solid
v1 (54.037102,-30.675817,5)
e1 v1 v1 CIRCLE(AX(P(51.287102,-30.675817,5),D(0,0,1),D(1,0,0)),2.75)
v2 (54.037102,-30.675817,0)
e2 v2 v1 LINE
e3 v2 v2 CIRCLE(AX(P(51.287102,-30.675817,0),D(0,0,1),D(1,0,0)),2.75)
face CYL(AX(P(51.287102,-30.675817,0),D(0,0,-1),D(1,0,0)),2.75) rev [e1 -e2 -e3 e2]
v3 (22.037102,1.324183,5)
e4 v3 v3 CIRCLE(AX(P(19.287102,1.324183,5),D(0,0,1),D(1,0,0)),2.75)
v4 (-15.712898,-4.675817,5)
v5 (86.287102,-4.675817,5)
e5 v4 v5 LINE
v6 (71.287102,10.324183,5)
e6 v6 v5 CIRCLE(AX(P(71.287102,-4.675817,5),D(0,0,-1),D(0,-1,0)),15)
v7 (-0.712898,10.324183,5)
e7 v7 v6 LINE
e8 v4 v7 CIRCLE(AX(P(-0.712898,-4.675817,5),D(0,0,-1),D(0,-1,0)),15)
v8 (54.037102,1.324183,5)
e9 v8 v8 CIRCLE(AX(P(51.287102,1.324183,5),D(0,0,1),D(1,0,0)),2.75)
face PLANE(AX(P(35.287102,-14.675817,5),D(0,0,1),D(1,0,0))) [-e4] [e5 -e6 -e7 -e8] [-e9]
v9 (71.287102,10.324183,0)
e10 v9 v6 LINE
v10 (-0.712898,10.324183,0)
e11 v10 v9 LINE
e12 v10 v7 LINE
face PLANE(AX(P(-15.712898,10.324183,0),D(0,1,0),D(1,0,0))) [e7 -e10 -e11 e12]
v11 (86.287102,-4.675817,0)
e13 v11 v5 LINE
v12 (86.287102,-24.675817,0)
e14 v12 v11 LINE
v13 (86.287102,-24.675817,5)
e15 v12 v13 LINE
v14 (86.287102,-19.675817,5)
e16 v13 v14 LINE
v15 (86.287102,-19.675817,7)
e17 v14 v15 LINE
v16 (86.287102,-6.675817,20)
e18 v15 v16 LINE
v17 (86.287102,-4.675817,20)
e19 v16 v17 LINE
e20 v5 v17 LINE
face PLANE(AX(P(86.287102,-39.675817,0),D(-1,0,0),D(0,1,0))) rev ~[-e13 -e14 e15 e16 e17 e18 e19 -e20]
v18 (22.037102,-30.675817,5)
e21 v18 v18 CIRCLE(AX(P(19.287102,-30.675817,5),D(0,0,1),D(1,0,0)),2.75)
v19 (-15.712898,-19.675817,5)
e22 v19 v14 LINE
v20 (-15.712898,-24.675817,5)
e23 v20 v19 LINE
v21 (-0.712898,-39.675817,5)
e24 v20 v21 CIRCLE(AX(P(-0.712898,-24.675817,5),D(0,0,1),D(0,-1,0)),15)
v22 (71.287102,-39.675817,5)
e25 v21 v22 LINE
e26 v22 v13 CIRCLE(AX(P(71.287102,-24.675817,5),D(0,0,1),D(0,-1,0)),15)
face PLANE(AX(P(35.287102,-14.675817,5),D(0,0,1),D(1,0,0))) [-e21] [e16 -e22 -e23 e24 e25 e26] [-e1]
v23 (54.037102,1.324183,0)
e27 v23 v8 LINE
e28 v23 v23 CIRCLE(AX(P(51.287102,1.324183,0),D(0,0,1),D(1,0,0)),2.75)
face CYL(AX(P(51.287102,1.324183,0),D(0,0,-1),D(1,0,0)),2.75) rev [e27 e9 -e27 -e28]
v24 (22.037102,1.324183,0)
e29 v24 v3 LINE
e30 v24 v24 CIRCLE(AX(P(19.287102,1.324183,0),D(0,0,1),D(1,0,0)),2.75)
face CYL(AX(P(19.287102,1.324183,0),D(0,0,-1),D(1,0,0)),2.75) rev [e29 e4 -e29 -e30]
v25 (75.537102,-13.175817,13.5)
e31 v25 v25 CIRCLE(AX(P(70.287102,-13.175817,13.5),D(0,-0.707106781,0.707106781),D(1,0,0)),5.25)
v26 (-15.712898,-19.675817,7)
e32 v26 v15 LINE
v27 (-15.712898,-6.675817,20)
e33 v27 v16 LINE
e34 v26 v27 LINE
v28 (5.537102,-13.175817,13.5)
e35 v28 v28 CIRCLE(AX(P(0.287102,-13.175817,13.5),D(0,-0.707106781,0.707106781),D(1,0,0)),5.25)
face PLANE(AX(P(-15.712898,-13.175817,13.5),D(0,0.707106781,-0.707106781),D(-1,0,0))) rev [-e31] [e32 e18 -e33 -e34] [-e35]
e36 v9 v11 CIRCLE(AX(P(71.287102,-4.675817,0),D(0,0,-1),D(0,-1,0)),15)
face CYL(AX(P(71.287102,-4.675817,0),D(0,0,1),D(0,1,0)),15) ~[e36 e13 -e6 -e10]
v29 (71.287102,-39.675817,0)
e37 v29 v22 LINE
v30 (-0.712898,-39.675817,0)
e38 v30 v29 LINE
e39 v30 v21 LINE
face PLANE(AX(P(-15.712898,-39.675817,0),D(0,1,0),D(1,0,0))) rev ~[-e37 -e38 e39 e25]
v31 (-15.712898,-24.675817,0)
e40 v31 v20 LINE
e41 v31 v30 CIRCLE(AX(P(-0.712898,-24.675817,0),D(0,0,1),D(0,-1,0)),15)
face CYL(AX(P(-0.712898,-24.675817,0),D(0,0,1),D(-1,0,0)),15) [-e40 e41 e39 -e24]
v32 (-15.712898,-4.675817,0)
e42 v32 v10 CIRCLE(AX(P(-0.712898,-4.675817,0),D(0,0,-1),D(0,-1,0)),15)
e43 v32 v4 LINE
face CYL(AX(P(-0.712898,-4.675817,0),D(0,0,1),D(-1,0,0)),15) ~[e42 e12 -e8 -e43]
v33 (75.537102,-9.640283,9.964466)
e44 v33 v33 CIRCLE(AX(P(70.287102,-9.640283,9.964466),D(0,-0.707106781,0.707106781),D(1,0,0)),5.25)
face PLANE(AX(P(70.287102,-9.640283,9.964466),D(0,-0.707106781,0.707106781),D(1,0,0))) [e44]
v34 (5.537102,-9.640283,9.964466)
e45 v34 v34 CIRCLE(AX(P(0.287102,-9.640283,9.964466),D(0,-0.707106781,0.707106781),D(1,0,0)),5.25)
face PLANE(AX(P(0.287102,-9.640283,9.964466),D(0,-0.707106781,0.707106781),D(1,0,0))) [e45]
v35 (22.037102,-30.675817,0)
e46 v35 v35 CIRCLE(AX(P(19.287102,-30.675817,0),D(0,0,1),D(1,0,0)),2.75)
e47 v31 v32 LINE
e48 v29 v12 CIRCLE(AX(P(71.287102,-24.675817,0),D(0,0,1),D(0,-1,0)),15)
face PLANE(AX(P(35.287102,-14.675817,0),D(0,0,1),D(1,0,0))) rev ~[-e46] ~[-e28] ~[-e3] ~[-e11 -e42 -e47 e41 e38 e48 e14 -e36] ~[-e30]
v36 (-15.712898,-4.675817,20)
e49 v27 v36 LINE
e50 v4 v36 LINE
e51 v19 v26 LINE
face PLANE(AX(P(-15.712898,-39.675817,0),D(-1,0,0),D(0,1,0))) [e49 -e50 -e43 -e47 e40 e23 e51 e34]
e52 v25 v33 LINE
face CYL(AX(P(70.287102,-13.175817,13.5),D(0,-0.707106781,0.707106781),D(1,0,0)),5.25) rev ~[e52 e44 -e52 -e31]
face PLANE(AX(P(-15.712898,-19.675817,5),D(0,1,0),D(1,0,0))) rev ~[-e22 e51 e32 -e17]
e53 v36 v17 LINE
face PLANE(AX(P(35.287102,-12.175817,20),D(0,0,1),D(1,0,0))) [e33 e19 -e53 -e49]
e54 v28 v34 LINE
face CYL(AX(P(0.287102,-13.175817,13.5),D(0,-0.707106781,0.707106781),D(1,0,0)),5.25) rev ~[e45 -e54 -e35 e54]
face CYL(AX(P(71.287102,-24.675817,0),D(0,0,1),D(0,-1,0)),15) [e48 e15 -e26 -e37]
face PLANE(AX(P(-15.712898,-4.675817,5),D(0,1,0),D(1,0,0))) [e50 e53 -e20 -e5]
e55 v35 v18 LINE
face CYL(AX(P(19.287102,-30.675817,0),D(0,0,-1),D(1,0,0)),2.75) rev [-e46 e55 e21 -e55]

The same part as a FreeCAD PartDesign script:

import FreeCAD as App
import Part
import Sketcher

V = App.Vector
Q = App.Units.Quantity


def edges_at(feature, points):
    """Names of the edges that pass closest to the given points."""
    edges = feature.Shape.Edges
    near = lambda p: min(range(len(edges)), key=lambda i: edges[i].distToShape(Part.Vertex(*p))[0])
    return sorted({f"Edge{near(p) + 1}" for p in points})

doc = App.newDocument("Part")
body = doc.addObject("PartDesign::Body", "Body")

# Sketch on XY plane
sketch1 = body.newObject("Sketcher::SketchObject", "Sketch")
sketch1.AttachmentSupport = (doc.getObject("XY_Plane"), [""])
sketch1.MapMode = "FlatFace"
sketch1.addGeometry([
    Part.LineSegment(V(-15.7, 10.3, 0), V(-15.7, -39.7, 0)),  # 0
    Part.LineSegment(V(-15.7, -39.7, 0), V(86.3, -39.7, 0)),  # 1
    Part.LineSegment(V(86.3, -39.7, 0), V(86.3, 10.3, 0)),  # 2
    Part.LineSegment(V(86.3, 10.3, 0), V(-15.7, 10.3, 0)),  # 3
    Part.Circle(V(19.3, -30.7, 0), V(0, 0, 1), 2.8),  # 4
    Part.Circle(V(51.3, -30.7, 0), V(0, 0, 1), 2.8),  # 5
    Part.Circle(V(19.3, 1.3, 0), V(0, 0, 1), 2.8),  # 6
    Part.Circle(V(51.3, 1.3, 0), V(0, 0, 1), 2.8),  # 7
], False)
sketch1.addConstraint([
    Sketcher.Constraint("Coincident", 0, 2, 1, 1),
    Sketcher.Constraint("Coincident", 1, 2, 2, 1),
    Sketcher.Constraint("Coincident", 2, 2, 3, 1),
    Sketcher.Constraint("Coincident", 3, 2, 0, 1),
    Sketcher.Constraint("Vertical", 0),
    Sketcher.Constraint("Horizontal", 1),
    Sketcher.Constraint("Vertical", 2),
    Sketcher.Constraint("Horizontal", 3),
    Sketcher.Constraint("Equal", 4, 5),
    Sketcher.Constraint("Equal", 5, 6),
    Sketcher.Constraint("Equal", 6, 7),
    Sketcher.Constraint("Horizontal", 4, 3, 5, 3),
    Sketcher.Constraint("Horizontal", 6, 3, 7, 3),
    Sketcher.Constraint("Vertical", 4, 3, 6, 3),
    Sketcher.Constraint("Vertical", 5, 3, 7, 3),
    Sketcher.Constraint("Diameter", 4, Q("5.5 mm")),
    Sketcher.Constraint("DistanceX", 1, 1, 1, 2, Q("102 mm")),
    Sketcher.Constraint("DistanceY", 0, 2, 0, 1, Q("50 mm")),
    Sketcher.Constraint("DistanceX", 4, 3, 5, 3, Q("32 mm")),
    Sketcher.Constraint("DistanceY", 4, 3, 6, 3, Q("32 mm")),
    Sketcher.Constraint("DistanceX", 0, 2, 4, 3, Q("35 mm")),
    Sketcher.Constraint("DistanceY", 0, 2, 4, 3, Q("9 mm")),
    Sketcher.Constraint("DistanceX", -1, 1, 4, 3, Q("19.287102 mm")),
    Sketcher.Constraint("DistanceY", 4, 3, -1, 1, Q("30.675817 mm")),
])
pad1 = body.newObject("PartDesign::Pad", "Pad")
pad1.Profile = sketch1
pad1.Length = 5

# Sketch on XY plane
sketch2 = body.newObject("Sketcher::SketchObject", "Sketch001")
sketch2.AttachmentSupport = (doc.getObject("XY_Plane"), [""])
sketch2.MapMode = "FlatFace"
sketch2.AttachmentOffset = App.Placement(V(0, 0, 5), App.Rotation())
sketch2.addGeometry([
    Part.LineSegment(V(-16, -5, 0), V(-16, -20, 0)),
    Part.LineSegment(V(-16, -20, 0), V(86, -20, 0)),
    Part.LineSegment(V(86, -20, 0), V(86, -5, 0)),
    Part.LineSegment(V(86, -5, 0), V(-16, -5, 0)),
], False)
sketch2.addConstraint([
    Sketcher.Constraint("Coincident", 0, 2, 1, 1),
    Sketcher.Constraint("Coincident", 1, 2, 2, 1),
    Sketcher.Constraint("Coincident", 2, 2, 3, 1),
    Sketcher.Constraint("Coincident", 3, 2, 0, 1),
    Sketcher.Constraint("Vertical", 0),
    Sketcher.Constraint("Horizontal", 1),
    Sketcher.Constraint("Vertical", 2),
    Sketcher.Constraint("Horizontal", 3),
    Sketcher.Constraint("DistanceX", 1, 1, 1, 2, Q("102 mm")),
    Sketcher.Constraint("DistanceY", 0, 2, 0, 1, Q("15 mm")),
    Sketcher.Constraint("DistanceX", 0, 2, -1, 1, Q("15.712898 mm")),
    Sketcher.Constraint("DistanceY", 0, 2, -1, 1, Q("19.675817 mm")),
])
pad2 = body.newObject("PartDesign::Pad", "Pad001")
pad2.Profile = sketch2
pad2.Length = 15
doc.recompute()

chamfer = body.newObject("PartDesign::Chamfer", "Chamfer")
chamfer.Base = (pad2, edges_at(pad2, [(35.287, -19.676, 20)]))
chamfer.Size = 13
doc.recompute()

fillet = body.newObject("PartDesign::Fillet", "Fillet")
fillet.Base = (chamfer, edges_at(chamfer, [
    (86.287, 10.324, 2.5),
    (-15.713, 10.324, 2.5),
    (86.287, -39.676, 2.5),
    (-15.713, -39.676, 2.5),
]))
fillet.Radius = 15

# Sketch on an angled plane
sketch3 = body.newObject("Sketcher::SketchObject", "Sketch002")
sketch3.Placement = App.Placement(V(0, -13.337908, 13.337908), App.Rotation(V(1, 0, 0), V(0, 0.707106781, 0.707106781), V(0, -0.707106781, 0.707106781), "ZXY"))
sketch3.addGeometry([
    Part.Circle(V(0, 0, 0), V(0, 0, 1), 5),
    Part.Circle(V(70, 0, 0), V(0, 0, 1), 5),
], False)
sketch3.addConstraint([
    Sketcher.Constraint("Equal", 0, 1),
    Sketcher.Constraint("Horizontal", 0, 3, 1, 3),
    Sketcher.Constraint("Diameter", 0, Q("10.5 mm")),
    Sketcher.Constraint("DistanceX", 0, 3, 1, 3, Q("70 mm")),
    Sketcher.Constraint("DistanceX", -1, 1, 0, 3, Q("0.287102 mm")),
    Sketcher.Constraint("DistanceY", -1, 1, 0, 3, Q("0.229232 mm")),
])
pocket1 = body.newObject("PartDesign::Pocket", "Pocket")
pocket1.Profile = sketch3
pocket1.Length = 5

doc.recompute()
